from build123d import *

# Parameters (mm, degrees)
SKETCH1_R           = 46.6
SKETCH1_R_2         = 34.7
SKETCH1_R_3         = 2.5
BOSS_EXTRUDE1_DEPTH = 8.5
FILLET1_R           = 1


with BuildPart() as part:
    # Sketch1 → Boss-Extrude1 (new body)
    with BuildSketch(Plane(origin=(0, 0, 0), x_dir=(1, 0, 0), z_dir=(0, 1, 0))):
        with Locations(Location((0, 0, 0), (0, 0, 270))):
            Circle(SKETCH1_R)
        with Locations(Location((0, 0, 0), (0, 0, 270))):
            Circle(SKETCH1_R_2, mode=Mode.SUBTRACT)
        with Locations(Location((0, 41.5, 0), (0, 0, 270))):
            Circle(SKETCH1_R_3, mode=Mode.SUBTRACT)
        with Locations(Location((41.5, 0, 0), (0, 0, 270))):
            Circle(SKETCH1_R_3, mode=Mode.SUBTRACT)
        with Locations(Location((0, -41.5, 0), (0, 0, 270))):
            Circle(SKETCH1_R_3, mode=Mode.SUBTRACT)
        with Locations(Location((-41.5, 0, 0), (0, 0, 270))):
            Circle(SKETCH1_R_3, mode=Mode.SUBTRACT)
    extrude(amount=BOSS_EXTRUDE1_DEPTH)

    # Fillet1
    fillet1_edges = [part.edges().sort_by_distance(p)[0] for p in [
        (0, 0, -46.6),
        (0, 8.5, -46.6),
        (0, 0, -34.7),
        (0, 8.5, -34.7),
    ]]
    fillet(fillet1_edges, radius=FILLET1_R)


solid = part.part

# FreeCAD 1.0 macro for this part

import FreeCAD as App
import Part
import Sketcher
from FreeCAD import Vector


def edges_at(feature, points):
    """Names of the edges that pass closest to the given points."""
    edges = feature.Shape.Edges
    near = lambda p: min(range(len(edges)), key=lambda i: edges[i].distToShape(Part.Vertex(*p))[0])
    return sorted({f"Edge{near(p) + 1}" for p in points})

doc = App.newDocument("Part")
body = doc.addObject("PartDesign::Body", "Body")

# Sketch on XZ plane
sketch1 = body.newObject("Sketcher::SketchObject", "Sketch")
sketch1.AttachmentSupport = (doc.getObject("XZ_Plane"), [""])
sketch1.MapMode = "FlatFace"
sketch1.addGeometry(Part.Circle(Vector(0, 0, 0), Vector(0, 0, 1), 46.6), False)
sketch1.addGeometry(Part.Circle(Vector(0, -41.5, 0), Vector(0, 0, 1), 2.5), False)
sketch1.addGeometry(Part.Circle(Vector(-41.5, 0, 0), Vector(0, 0, 1), 2.5), False)
sketch1.addGeometry(Part.Circle(Vector(41.5, 0, 0), Vector(0, 0, 1), 2.5), False)
sketch1.addGeometry(Part.Circle(Vector(0, 0, 0), Vector(0, 0, 1), 34.7), False)
sketch1.addGeometry(Part.Circle(Vector(0, 41.5, 0), Vector(0, 0, 1), 2.5), False)
sketch1.addConstraint(Sketcher.Constraint("Coincident", 0, 3, -1, 1))
sketch1.addConstraint(Sketcher.Constraint("Coincident", 4, 3, -1, 1))
sketch1.addConstraint(Sketcher.Constraint("Equal", 1, 2))
sketch1.addConstraint(Sketcher.Constraint("Equal", 2, 3))
sketch1.addConstraint(Sketcher.Constraint("Equal", 3, 5))
sketch1.addConstraint(Sketcher.Constraint("Symmetric", 2, 3, 3, 3, -1, 1))
sketch1.addConstraint(Sketcher.Constraint("Symmetric", 1, 3, 5, 3, -1, 1))
sketch1.addConstraint(Sketcher.Constraint("PointOnObject", 1, 3, -2))
sketch1.addConstraint(Sketcher.Constraint("PointOnObject", 2, 3, -1))
sketch1.addConstraint(Sketcher.Constraint("Diameter", 1, 5.0))
sketch1.addConstraint(Sketcher.Constraint("Diameter", 0, 93.2))
sketch1.addConstraint(Sketcher.Constraint("Diameter", 4, 69.4))
sketch1.addConstraint(Sketcher.Constraint("DistanceX", 2, 3, 3, 3, 83.0))
sketch1.addConstraint(Sketcher.Constraint("DistanceY", 1, 3, 5, 3, 83.0))
pad1 = body.newObject("PartDesign::Pad", "Pad")
pad1.Profile = sketch1
pad1.Length = 8.5
pad1.Reversed = True
doc.recompute()

fillet = body.newObject("PartDesign::Fillet", "Fillet")
fillet.Base = (pad1, edges_at(pad1, [
    (0, 0, -46.6),
    (0, 8.5, -46.6),
    (0, 0, -34.7),
    (0, 8.5, -34.7),
]))
fillet.Radius = 1

doc.recompute()
